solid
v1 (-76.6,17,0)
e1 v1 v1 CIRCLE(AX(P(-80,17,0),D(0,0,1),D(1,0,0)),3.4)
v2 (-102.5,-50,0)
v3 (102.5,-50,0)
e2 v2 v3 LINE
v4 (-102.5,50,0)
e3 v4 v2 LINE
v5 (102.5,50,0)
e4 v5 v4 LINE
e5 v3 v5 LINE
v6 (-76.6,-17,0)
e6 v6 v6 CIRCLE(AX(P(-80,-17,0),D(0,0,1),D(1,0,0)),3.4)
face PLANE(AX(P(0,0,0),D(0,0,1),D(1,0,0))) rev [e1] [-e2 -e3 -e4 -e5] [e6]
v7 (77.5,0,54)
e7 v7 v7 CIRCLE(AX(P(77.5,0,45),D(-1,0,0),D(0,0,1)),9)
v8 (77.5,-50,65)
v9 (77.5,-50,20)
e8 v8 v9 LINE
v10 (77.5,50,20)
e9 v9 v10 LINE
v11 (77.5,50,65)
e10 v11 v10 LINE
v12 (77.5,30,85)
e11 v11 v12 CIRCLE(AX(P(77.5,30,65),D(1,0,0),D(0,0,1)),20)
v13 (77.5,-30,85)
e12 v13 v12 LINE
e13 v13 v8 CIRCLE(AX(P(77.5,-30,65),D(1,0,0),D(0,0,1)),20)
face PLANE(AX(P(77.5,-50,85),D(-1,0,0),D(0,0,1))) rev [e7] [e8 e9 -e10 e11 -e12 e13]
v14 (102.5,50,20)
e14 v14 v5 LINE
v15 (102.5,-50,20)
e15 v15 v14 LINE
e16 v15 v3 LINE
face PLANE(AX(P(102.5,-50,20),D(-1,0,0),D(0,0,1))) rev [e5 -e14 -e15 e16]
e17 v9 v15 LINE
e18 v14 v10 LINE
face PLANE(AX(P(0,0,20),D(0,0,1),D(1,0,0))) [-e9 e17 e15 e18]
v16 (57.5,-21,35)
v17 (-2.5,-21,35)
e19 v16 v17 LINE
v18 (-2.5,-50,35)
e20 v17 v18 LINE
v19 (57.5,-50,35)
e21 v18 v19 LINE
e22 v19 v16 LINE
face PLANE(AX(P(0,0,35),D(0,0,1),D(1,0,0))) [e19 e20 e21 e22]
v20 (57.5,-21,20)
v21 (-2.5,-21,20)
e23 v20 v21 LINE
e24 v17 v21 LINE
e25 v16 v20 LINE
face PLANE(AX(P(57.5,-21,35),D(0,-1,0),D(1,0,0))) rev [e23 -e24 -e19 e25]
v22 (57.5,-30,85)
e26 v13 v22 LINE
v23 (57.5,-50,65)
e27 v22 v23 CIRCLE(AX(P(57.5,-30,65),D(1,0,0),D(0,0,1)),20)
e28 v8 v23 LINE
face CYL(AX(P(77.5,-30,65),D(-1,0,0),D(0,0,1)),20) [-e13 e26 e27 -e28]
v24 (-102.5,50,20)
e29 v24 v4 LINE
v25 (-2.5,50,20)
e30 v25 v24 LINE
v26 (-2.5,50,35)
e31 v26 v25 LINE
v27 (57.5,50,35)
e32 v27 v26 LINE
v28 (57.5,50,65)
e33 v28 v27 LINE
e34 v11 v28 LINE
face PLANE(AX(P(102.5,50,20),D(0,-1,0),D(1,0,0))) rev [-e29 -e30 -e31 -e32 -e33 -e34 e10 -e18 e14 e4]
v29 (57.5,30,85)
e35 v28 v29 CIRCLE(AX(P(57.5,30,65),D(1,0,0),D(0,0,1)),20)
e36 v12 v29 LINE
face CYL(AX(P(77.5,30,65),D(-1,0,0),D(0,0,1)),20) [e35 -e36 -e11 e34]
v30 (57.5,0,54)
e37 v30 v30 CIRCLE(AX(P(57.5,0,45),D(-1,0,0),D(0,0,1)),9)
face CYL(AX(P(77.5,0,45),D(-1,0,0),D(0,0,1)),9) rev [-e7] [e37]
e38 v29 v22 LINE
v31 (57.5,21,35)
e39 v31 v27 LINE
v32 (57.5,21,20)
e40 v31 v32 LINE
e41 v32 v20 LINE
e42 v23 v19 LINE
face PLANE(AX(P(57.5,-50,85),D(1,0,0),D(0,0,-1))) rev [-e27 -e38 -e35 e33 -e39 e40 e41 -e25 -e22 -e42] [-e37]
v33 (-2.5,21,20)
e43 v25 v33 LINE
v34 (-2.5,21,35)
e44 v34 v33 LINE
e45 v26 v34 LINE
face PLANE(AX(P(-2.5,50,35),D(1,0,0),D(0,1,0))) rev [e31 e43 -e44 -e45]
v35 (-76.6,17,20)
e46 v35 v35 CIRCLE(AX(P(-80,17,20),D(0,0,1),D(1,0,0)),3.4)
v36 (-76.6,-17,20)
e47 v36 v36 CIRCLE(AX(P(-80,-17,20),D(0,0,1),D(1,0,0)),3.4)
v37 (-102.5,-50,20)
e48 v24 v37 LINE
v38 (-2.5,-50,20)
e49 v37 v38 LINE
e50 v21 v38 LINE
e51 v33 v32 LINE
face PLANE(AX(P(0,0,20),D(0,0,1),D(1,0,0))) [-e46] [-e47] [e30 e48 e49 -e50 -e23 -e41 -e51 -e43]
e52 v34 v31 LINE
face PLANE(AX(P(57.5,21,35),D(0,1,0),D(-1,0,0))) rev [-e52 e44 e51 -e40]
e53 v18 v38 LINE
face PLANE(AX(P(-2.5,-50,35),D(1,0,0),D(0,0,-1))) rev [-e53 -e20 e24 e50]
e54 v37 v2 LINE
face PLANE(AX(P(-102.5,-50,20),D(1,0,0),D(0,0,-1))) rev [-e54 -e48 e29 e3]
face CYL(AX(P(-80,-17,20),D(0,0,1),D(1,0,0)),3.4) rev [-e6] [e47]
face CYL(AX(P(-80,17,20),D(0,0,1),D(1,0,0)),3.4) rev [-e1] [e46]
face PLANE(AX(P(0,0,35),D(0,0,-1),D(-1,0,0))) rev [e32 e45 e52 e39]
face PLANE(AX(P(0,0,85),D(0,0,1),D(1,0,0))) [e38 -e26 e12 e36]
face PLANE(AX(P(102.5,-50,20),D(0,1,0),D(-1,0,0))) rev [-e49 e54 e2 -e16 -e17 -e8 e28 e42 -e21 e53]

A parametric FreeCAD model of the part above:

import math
import FreeCAD as App
import Part
import Sketcher

V = App.Vector
Q = App.Units.Quantity


def add_polygon(sketch, points):
    """Adds a closed chain of lines whose ends are joined by coincident constraints."""
    first, n = sketch.GeometryCount, len(points)
    for a, b in zip(points, points[1:] + points[:1]):
        sketch.addGeometry(Part.LineSegment(App.Vector(*a, 0), App.Vector(*b, 0)), False)
    for i in range(n):
        sketch.addConstraint(Sketcher.Constraint("Coincident", first + i, 2, first + (i + 1) % n, 1))

doc = App.newDocument("Part")
body = doc.addObject("PartDesign::Body", "Body")

# Sketch on XY plane
sketch1 = doc.addObject("Sketcher::SketchObject", "Sketch")
body.addObject(sketch1)
sketch1.AttachmentSupport = (doc.XY_Plane, [""])
sketch1.MapMode = "FlatFace"
add_polygon(sketch1, [(-102.5, 50), (-102.5, -50), (102.5, -50), (102.5, 50)])  # lines 0-3
sketch1.addConstraint(Sketcher.Constraint("Vertical", 0))
sketch1.addConstraint(Sketcher.Constraint("Horizontal", 1))
sketch1.addConstraint(Sketcher.Constraint("Vertical", 2))
sketch1.addConstraint(Sketcher.Constraint("Horizontal", 3))
sketch1.addConstraint(Sketcher.Constraint("Symmetric", 0, 2, 2, 2, -1, 1))
sketch1.addConstraint(Sketcher.Constraint("DistanceX", 1, 1, 1, 2, Q("205 mm")))
sketch1.addConstraint(Sketcher.Constraint("DistanceY", 0, 2, 0, 1, Q("100 mm")))
pad1 = doc.addObject("PartDesign::Pad", "Pad")
body.addObject(pad1)
pad1.Profile = sketch1
pad1.Length = 20

# Sketch on XY plane
sketch2 = doc.addObject("Sketcher::SketchObject", "Sketch001")
body.addObject(sketch2)
sketch2.AttachmentSupport = (doc.XY_Plane, [""])
sketch2.MapMode = "FlatFace"
sketch2.AttachmentOffset = App.Placement(V(0, 0, 20), App.Rotation())
add_polygon(sketch2, [(57.5, 50), (57.5, -50), (77.5, -50), (77.5, 50)])  # lines 0-3
sketch2.addConstraint(Sketcher.Constraint("Vertical", 0))
sketch2.addConstraint(Sketcher.Constraint("Horizontal", 1))
sketch2.addConstraint(Sketcher.Constraint("Vertical", 2))
sketch2.addConstraint(Sketcher.Constraint("Horizontal", 3))
sketch2.addConstraint(Sketcher.Constraint("DistanceX", 1, 1, 1, 2, Q("20 mm")))
sketch2.addConstraint(Sketcher.Constraint("DistanceY", 0, 2, 0, 1, Q("100 mm")))
sketch2.addConstraint(Sketcher.Constraint("DistanceY", 0, 2, -1, 1, Q("50 mm")))
sketch2.addConstraint(Sketcher.Constraint("DistanceX", -1, 1, 0, 2, Q("57.5 mm")))
pad2 = doc.addObject("PartDesign::Pad", "Pad001")
body.addObject(pad2)
pad2.Profile = sketch2
pad2.Length = 65

# Sketch on YZ plane
sketch3 = doc.addObject("Sketcher::SketchObject", "Sketch002")
body.addObject(sketch3)
sketch3.AttachmentSupport = (doc.YZ_Plane, [""])
sketch3.MapMode = "FlatFace"
sketch3.AttachmentOffset = App.Placement(V(0, 0, 57.5), App.Rotation())
sketch3.addGeometry(Part.LineSegment(V(50, 85, 0), V(50, 65, 0)), False)
sketch3.addGeometry(Part.ArcOfCircle(Part.Circle(V(30, 65, 0), V(0, 0, 1), 20), math.radians(0), math.radians(90)), False)
sketch3.addGeometry(Part.LineSegment(V(30, 85, 0), V(50, 85, 0)), False)
sketch3.addGeometry(Part.LineSegment(V(-50, 85, 0), V(-30, 85, 0)), False)
sketch3.addGeometry(Part.ArcOfCircle(Part.Circle(V(-30, 65, 0), V(0, 0, 1), 20), math.radians(90), math.radians(180)), False)
sketch3.addGeometry(Part.LineSegment(V(-50, 65, 0), V(-50, 85, 0)), False)
sketch3.addConstraint(Sketcher.Constraint("Tangent", 0, 2, 1, 1))
sketch3.addConstraint(Sketcher.Constraint("Tangent", 1, 2, 2, 1))
sketch3.addConstraint(Sketcher.Constraint("Coincident", 2, 2, 0, 1))
sketch3.addConstraint(Sketcher.Constraint("Tangent", 3, 2, 4, 1))
sketch3.addConstraint(Sketcher.Constraint("Tangent", 4, 2, 5, 1))
sketch3.addConstraint(Sketcher.Constraint("Coincident", 5, 2, 3, 1))
sketch3.addConstraint(Sketcher.Constraint("Vertical", 0))
sketch3.addConstraint(Sketcher.Constraint("Horizontal", 2))
sketch3.addConstraint(Sketcher.Constraint("Horizontal", 3))
sketch3.addConstraint(Sketcher.Constraint("Vertical", 5))
sketch3.addConstraint(Sketcher.Constraint("Equal", 1, 4))
sketch3.addConstraint(Sketcher.Constraint("Symmetric", 1, 3, 4, 3, -2))
sketch3.addConstraint(Sketcher.Constraint("Radius", 1, Q("20 mm")))
sketch3.addConstraint(Sketcher.Constraint("DistanceX", -1, 1, 1, 3, Q("30 mm")))
sketch3.addConstraint(Sketcher.Constraint("DistanceY", -1, 1, 1, 3, Q("65 mm")))
pocket1 = doc.addObject("PartDesign::Pocket", "Pocket")
body.addObject(pocket1)
pocket1.Profile = sketch3
pocket1.Length = 20
pocket1.Reversed = True

# Sketch on YZ plane
sketch4 = doc.addObject("Sketcher::SketchObject", "Sketch003")
body.addObject(sketch4)
sketch4.AttachmentSupport = (doc.YZ_Plane, [""])
sketch4.MapMode = "FlatFace"
sketch4.AttachmentOffset = App.Placement(V(0, 0, 57.5), App.Rotation())
sketch4.addGeometry(Part.Circle(V(0, 45, 0), V(0, 0, 1), 9), False)
sketch4.addConstraint(Sketcher.Constraint("PointOnObject", 0, 3, -2))
sketch4.addConstraint(Sketcher.Constraint("Diameter", 0, Q("18 mm")))
sketch4.addConstraint(Sketcher.Constraint("DistanceY", -1, 1, 0, 3, Q("45 mm")))
pocket2 = doc.addObject("PartDesign::Pocket", "Pocket001")
body.addObject(pocket2)
pocket2.Profile = sketch4
pocket2.Length = 20
pocket2.Reversed = True

# Sketch on XY plane
sketch5 = doc.addObject("Sketcher::SketchObject", "Sketch004")
body.addObject(sketch5)
sketch5.AttachmentSupport = (doc.XY_Plane, [""])
sketch5.MapMode = "FlatFace"
sketch5.AttachmentOffset = App.Placement(V(0, 0, 20), App.Rotation())
add_polygon(sketch5, [(-2.5, -21), (-2.5, -50), (57.5, -50), (57.5, -21)])  # lines 0-3
add_polygon(sketch5, [(-2.5, 50), (-2.5, 21), (57.5, 21), (57.5, 50)])  # lines 4-7
sketch5.addConstraint(Sketcher.Constraint("Vertical", 0))
sketch5.addConstraint(Sketcher.Constraint("Horizontal", 1))
sketch5.addConstraint(Sketcher.Constraint("Vertical", 2))
sketch5.addConstraint(Sketcher.Constraint("Horizontal", 3))
sketch5.addConstraint(Sketcher.Constraint("Vertical", 4))
sketch5.addConstraint(Sketcher.Constraint("Horizontal", 5))
sketch5.addConstraint(Sketcher.Constraint("Vertical", 6))
sketch5.addConstraint(Sketcher.Constraint("Horizontal", 7))
sketch5.addConstraint(Sketcher.Constraint("Symmetric", 3, 2, 4, 2, -1))
sketch5.addConstraint(Sketcher.Constraint("Symmetric", 1, 2, 6, 2, -1))
sketch5.addConstraint(Sketcher.Constraint("DistanceX", 1, 1, 1, 2, Q("60 mm")))
sketch5.addConstraint(Sketcher.Constraint("DistanceY", 0, 2, 0, 1, Q("29 mm")))
sketch5.addConstraint(Sketcher.Constraint("DistanceY", 0, 2, -1, 1, Q("50 mm")))
sketch5.addConstraint(Sketcher.Constraint("DistanceX", 0, 2, -1, 1, Q("2.5 mm")))
pad3 = doc.addObject("PartDesign::Pad", "Pad002")
body.addObject(pad3)
pad3.Profile = sketch5
pad3.Length = 15

# Sketch on XY plane
sketch6 = doc.addObject("Sketcher::SketchObject", "Sketch005")
body.addObject(sketch6)
sketch6.AttachmentSupport = (doc.XY_Plane, [""])
sketch6.MapMode = "FlatFace"
sketch6.AttachmentOffset = App.Placement(V(0, 0, 20), App.Rotation())
sketch6.addGeometry(Part.Circle(V(-80, 17, 0), V(0, 0, 1), 3.4), False)
sketch6.addGeometry(Part.Circle(V(-80, -17, 0), V(0, 0, 1), 3.4), False)
sketch6.addConstraint(Sketcher.Constraint("Equal", 0, 1))
sketch6.addConstraint(Sketcher.Constraint("Symmetric", 0, 3, 1, 3, -1))
sketch6.addConstraint(Sketcher.Constraint("Diameter", 0, Q("6.8 mm")))
sketch6.addConstraint(Sketcher.Constraint("DistanceX", 0, 3, -1, 1, Q("80 mm")))
sketch6.addConstraint(Sketcher.Constraint("DistanceY", -1, 1, 0, 3, Q("17 mm")))
doc.recompute()
hole = doc.addObject("PartDesign::Hole", "Hole")
body.addObject(hole)
hole.Profile = sketch6
hole.ThreadType = "None"
hole.Diameter = 6.8
hole.DepthType = "ThroughAll"

doc.recompute()
